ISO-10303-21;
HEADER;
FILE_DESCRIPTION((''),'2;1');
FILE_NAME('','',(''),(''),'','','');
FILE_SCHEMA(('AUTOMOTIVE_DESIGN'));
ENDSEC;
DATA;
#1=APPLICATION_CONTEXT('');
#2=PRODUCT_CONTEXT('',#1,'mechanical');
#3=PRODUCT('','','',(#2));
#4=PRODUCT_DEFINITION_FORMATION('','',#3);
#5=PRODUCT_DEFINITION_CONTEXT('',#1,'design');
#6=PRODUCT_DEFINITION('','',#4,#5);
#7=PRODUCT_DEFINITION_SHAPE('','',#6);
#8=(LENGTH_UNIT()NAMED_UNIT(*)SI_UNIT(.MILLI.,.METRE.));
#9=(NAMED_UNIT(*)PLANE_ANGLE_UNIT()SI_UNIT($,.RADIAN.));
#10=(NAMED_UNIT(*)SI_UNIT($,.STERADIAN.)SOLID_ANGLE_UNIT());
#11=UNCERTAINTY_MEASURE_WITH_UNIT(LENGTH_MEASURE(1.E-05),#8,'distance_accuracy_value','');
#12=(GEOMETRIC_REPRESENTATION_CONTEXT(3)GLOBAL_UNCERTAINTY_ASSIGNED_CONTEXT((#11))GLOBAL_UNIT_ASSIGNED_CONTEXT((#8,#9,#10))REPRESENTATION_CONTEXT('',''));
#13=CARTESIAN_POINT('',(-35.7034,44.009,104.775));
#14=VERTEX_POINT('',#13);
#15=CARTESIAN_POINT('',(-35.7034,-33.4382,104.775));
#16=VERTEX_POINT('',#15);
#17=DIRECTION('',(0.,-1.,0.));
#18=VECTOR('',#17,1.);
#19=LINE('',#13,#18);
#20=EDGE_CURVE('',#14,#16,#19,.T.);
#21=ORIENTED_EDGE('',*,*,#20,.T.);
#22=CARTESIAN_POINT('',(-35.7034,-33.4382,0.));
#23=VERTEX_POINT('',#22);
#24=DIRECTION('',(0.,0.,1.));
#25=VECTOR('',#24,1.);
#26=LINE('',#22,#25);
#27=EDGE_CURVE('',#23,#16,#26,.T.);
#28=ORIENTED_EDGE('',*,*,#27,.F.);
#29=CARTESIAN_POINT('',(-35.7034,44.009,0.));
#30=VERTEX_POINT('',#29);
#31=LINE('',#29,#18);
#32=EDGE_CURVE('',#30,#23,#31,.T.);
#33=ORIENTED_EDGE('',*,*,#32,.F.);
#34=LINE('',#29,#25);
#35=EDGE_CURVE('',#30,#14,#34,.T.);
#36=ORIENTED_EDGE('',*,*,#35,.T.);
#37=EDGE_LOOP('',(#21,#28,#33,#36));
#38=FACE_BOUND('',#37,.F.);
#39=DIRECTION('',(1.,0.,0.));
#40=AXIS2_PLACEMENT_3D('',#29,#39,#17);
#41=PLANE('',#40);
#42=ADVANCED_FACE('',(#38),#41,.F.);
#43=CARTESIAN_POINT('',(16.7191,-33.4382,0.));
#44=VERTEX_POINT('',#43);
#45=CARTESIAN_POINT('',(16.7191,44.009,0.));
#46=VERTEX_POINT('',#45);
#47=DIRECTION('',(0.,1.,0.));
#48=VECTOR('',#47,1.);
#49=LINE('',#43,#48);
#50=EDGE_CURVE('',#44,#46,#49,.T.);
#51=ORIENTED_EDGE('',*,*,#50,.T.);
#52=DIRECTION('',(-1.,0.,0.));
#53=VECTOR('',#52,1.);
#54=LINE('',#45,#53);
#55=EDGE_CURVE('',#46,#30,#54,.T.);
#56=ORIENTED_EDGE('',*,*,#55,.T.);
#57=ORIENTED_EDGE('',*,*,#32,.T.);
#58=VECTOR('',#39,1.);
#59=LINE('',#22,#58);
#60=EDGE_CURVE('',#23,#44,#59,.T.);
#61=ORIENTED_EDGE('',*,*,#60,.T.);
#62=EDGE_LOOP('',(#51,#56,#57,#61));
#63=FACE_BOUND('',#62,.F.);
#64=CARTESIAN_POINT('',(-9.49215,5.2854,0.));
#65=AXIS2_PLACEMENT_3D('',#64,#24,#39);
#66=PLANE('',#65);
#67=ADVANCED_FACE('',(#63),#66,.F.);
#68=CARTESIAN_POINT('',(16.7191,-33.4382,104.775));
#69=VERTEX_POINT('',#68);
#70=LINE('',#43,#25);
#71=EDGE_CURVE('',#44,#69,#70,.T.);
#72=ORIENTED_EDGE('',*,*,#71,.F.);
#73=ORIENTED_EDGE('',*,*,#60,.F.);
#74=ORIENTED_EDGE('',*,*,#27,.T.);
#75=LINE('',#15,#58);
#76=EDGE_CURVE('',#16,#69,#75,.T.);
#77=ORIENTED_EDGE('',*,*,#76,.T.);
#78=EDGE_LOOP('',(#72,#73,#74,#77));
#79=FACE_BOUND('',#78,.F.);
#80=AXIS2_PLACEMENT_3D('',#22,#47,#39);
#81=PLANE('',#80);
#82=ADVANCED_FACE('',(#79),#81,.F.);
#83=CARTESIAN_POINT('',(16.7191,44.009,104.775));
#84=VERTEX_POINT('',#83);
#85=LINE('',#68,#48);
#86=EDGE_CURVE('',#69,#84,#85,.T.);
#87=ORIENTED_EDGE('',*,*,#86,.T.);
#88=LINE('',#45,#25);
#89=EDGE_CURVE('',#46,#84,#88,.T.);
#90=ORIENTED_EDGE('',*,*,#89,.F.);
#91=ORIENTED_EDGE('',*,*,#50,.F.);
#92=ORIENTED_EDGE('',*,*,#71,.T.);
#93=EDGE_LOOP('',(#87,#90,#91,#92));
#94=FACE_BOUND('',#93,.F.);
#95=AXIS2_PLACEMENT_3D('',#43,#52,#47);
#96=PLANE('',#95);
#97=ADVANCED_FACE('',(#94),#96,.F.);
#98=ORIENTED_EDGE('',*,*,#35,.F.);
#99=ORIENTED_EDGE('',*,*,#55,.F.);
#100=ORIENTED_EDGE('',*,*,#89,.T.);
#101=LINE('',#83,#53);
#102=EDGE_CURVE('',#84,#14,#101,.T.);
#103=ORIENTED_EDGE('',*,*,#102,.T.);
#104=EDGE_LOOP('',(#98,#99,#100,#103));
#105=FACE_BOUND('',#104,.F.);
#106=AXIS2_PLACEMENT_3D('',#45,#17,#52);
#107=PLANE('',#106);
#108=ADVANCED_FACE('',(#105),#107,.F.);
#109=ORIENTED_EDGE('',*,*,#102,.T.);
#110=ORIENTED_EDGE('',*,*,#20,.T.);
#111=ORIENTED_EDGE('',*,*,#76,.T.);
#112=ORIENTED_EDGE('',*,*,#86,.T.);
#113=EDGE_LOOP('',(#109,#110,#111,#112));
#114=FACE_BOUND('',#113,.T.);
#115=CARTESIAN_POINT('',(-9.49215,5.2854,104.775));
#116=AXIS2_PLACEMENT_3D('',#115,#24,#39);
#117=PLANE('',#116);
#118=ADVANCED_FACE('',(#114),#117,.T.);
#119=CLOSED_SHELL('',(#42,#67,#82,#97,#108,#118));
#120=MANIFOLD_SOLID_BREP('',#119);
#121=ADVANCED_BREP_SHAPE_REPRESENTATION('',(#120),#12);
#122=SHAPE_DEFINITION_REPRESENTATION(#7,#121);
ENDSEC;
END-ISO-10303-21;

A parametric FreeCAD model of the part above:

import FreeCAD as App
import Part
import Sketcher

V = App.Vector
Q = App.Units.Quantity


def add_polygon(sketch, points):
    """Adds a closed chain of lines whose ends are joined by coincident constraints."""
    first, n = sketch.GeometryCount, len(points)
    for a, b in zip(points, points[1:] + points[:1]):
        sketch.addGeometry(Part.LineSegment(App.Vector(*a, 0), App.Vector(*b, 0)), False)
    for i in range(n):
        sketch.addConstraint(Sketcher.Constraint("Coincident", first + i, 2, first + (i + 1) % n, 1))

doc = App.newDocument("Part")
body = doc.addObject("PartDesign::Body", "Body")

sketch1 = body.newObject("Sketcher::SketchObject", "Sketch")
sketch1.AttachmentSupport = (doc.getObject("XY_Plane"), [""])
sketch1.MapMode = "FlatFace"
add_polygon(sketch1, [(-35.7034, 44.009), (-35.7034, -33.4382), (16.7191, -33.4382), (16.7191, 44.009)])
sketch1.addConstraint(Sketcher.Constraint("Vertical", 0))
sketch1.addConstraint(Sketcher.Constraint("Horizontal", 1))
sketch1.addConstraint(Sketcher.Constraint("Vertical", 2))
sketch1.addConstraint(Sketcher.Constraint("Horizontal", 3))
sketch1.addConstraint(Sketcher.Constraint("DistanceY", 0, 2, 0, 1, Q("3.0491 in")))
sketch1.addConstraint(Sketcher.Constraint("DistanceX", 1, 1, 1, 2, Q("52.4225 mm")))
sketch1.addConstraint(Sketcher.Constraint("DistanceX", 0, 2, -1, 1, Q("35.7034 mm")))
sketch1.addConstraint(Sketcher.Constraint("DistanceY", 0, 2, -1, 1, Q("33.4382 mm")))
pad1 = body.newObject("PartDesign::Pad", "Pad")
pad1.Profile = sketch1
pad1.Length = Q("4.125 in")

doc.recompute()
